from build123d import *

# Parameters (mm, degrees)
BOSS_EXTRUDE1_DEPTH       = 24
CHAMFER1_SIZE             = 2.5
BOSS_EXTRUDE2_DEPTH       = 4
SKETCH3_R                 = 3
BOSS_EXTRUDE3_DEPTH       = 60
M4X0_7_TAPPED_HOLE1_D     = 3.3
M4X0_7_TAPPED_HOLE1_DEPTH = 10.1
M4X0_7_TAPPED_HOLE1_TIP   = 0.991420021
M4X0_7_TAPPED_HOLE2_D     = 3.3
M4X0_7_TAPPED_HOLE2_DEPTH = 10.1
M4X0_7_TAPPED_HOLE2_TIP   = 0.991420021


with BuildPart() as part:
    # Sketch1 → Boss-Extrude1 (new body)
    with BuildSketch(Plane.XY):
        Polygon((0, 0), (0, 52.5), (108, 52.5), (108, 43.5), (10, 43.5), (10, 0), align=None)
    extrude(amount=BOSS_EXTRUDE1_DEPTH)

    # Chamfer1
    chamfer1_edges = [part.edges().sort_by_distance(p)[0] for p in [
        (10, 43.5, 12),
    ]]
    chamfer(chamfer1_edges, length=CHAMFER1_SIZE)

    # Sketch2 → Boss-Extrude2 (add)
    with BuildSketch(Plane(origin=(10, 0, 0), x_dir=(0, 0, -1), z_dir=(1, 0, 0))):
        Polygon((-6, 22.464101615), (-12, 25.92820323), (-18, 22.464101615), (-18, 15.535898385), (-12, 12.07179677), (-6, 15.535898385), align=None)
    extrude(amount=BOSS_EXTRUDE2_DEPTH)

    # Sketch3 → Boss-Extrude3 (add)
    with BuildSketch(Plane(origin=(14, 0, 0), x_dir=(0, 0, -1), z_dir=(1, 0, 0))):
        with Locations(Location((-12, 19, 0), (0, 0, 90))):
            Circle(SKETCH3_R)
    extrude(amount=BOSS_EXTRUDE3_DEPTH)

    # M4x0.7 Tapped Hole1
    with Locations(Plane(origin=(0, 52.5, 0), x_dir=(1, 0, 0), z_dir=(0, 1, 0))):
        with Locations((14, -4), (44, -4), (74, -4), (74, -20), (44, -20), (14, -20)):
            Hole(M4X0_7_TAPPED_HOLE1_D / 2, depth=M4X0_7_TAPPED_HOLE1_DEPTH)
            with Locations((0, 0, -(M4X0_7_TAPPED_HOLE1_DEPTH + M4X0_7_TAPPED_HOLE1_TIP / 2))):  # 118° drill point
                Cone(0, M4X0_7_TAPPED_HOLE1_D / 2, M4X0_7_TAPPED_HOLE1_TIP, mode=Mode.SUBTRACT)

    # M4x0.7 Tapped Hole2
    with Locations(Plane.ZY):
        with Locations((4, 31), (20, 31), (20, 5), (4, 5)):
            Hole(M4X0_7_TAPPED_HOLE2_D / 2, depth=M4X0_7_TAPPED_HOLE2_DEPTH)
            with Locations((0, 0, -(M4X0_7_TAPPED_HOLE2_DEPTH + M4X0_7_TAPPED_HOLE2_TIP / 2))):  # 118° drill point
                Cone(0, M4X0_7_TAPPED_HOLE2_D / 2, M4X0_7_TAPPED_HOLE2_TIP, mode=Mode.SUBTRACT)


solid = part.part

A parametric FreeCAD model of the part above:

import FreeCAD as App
import Part
import Sketcher
from FreeCAD import Vector
Q = App.Units.Quantity


def edges_at(feature, points):
    """Names of the edges that pass closest to the given points."""
    edges = feature.Shape.Edges
    near = lambda p: min(range(len(edges)), key=lambda i: edges[i].distToShape(Part.Vertex(*p))[0])
    return sorted({f"Edge{near(p) + 1}" for p in points})


def add_polygon(sketch, points):
    """Adds a closed chain of lines whose ends are joined by coincident constraints."""
    first, n = sketch.GeometryCount, len(points)
    for a, b in zip(points, points[1:] + points[:1]):
        sketch.addGeometry(Part.LineSegment(App.Vector(*a, 0), App.Vector(*b, 0)), False)
    for i in range(n):
        sketch.addConstraint(Sketcher.Constraint("Coincident", first + i, 2, first + (i + 1) % n, 1))

doc = App.newDocument("Part")
params = doc.addObject("Spreadsheet::Sheet", "Params")
for row, (alias, value) in enumerate([
    ("sketch1_width", "10 mm"),
    ("sketch1_width2", "98 mm"),
    ("sketch1_height", "9 mm"),
    ("sketch1_height2", "52.5 mm"),
    ("pad1_length", "24 mm"),
    ("chamfer_size", "2.5 mm"),
    ("pad2_length", "4 mm"),
    ("sketch3_diameter", "6 mm"),
    ("pad3_length", "60 mm"),
    ("sketch4_diameter", "3.3 mm"),
    ("hole_diameter", "3.3 mm"),
    ("hole_depth", "10.1 mm"),
    ("sketch5_diameter", "3.3 mm"),
    ("hole2_diameter", "3.3 mm"),
    ("hole2_depth", "10.1 mm"),
], start=1):
    params.set(f"A{row}", alias)
    params.set(f"B{row}", "=" + value)
    params.setAlias(f"B{row}", alias)

body = doc.addObject("PartDesign::Body", "Body")

# Sketch on XY plane
sketch1 = body.newObject("Sketcher::SketchObject", "Sketch")
sketch1.AttachmentSupport = (doc.getObject("XY_Plane"), [""])
sketch1.MapMode = "FlatFace"
add_polygon(sketch1, [(0, 52), (0, 0), (10, 0), (10, 44), (108, 44), (108, 52)])  # lines 0-5
sketch1.addConstraint(Sketcher.Constraint("Vertical", 0))
sketch1.addConstraint(Sketcher.Constraint("Horizontal", 1))
sketch1.addConstraint(Sketcher.Constraint("Vertical", 2))
sketch1.addConstraint(Sketcher.Constraint("Horizontal", 3))
sketch1.addConstraint(Sketcher.Constraint("Vertical", 4))
sketch1.addConstraint(Sketcher.Constraint("Horizontal", 5))
sketch1.addConstraint(Sketcher.Constraint("Coincident", 0, 2, -1, 1))
sketch1.addConstraint(Sketcher.Constraint("DistanceX", 1, 1, 1, 2, Q("10 mm")))
sketch1.addConstraint(Sketcher.Constraint("DistanceX", 3, 1, 3, 2, Q("98 mm")))
sketch1.addConstraint(Sketcher.Constraint("DistanceY", 4, 1, 4, 2, Q("9 mm")))
sketch1.addConstraint(Sketcher.Constraint("DistanceY", 0, 2, 0, 1, Q("52.5 mm")))
sketch1.setExpression("Constraints[13]", "Params.sketch1_width")
sketch1.setExpression("Constraints[14]", "Params.sketch1_width2")
sketch1.setExpression("Constraints[15]", "Params.sketch1_height")
sketch1.setExpression("Constraints[16]", "Params.sketch1_height2")
pad1 = body.newObject("PartDesign::Pad", "Pad")
pad1.Profile = sketch1
pad1.setExpression("Length", "Params.pad1_length")
doc.recompute()

chamfer = body.newObject("PartDesign::Chamfer", "Chamfer")
chamfer.Base = (pad1, edges_at(pad1, [(10, 43.5, 12)]))
chamfer.setExpression("Size", "Params.chamfer_size")

# Sketch on YZ plane
sketch2 = body.newObject("Sketcher::SketchObject", "Sketch001")
sketch2.AttachmentSupport = (doc.getObject("YZ_Plane"), [""])
sketch2.MapMode = "FlatFace"
sketch2.AttachmentOffset = App.Placement(Vector(0, 0, 10), App.Rotation())
add_polygon(sketch2, [(22, 6), (26, 12), (22, 18), (16, 18), (12, 12), (16, 6)])  # lines 0-5
sketch2.addConstraint(Sketcher.Constraint("Horizontal", 2))
sketch2.addConstraint(Sketcher.Constraint("Horizontal", 5))
sketch2.addConstraint(Sketcher.Constraint("Parallel", 0, 3))
sketch2.addConstraint(Sketcher.Constraint("Parallel", 1, 4))
sketch2.addConstraint(Sketcher.Constraint("Horizontal", 0, 2, 3, 2))
sketch2.addConstraint(Sketcher.Constraint("Vertical", 2, 2, 4, 2))
sketch2.addConstraint(Sketcher.Constraint("Vertical", 1, 2, 5, 2))
sketch2.addConstraint(Sketcher.Constraint("Angle", 0, Q("60 deg")))
sketch2.addConstraint(Sketcher.Constraint("DistanceY", -1, 1, 0, 2, Q("12 mm")))
sketch2.addConstraint(Sketcher.Constraint("DistanceY", -1, 1, 1, 2, Q("18 mm")))
sketch2.addConstraint(Sketcher.Constraint("DistanceX", -1, 1, 1, 2, Q("22.464102 mm")))
sketch2.addConstraint(Sketcher.Constraint("DistanceX", -1, 1, 2, 2, Q("15.535898 mm")))
pad2 = body.newObject("PartDesign::Pad", "Pad001")
pad2.Profile = sketch2
pad2.setExpression("Length", "Params.pad2_length")

# Sketch on YZ plane
sketch3 = body.newObject("Sketcher::SketchObject", "Sketch002")
sketch3.AttachmentSupport = (doc.getObject("YZ_Plane"), [""])
sketch3.MapMode = "FlatFace"
sketch3.AttachmentOffset = App.Placement(Vector(0, 0, 14), App.Rotation())
sketch3.addGeometry(Part.Circle(Vector(19, 12, 0), Vector(0, 0, 1), 3), False)
sketch3.addConstraint(Sketcher.Constraint("Diameter", 0, Q("6 mm")))
sketch3.addConstraint(Sketcher.Constraint("DistanceX", -1, 1, 0, 3, Q("19 mm")))
sketch3.addConstraint(Sketcher.Constraint("DistanceY", -1, 1, 0, 3, Q("12 mm")))
sketch3.setExpression("Constraints[0]", "Params.sketch3_diameter")
pad3 = body.newObject("PartDesign::Pad", "Pad002")
pad3.Profile = sketch3
pad3.setExpression("Length", "Params.pad3_length")

# Sketch on XZ plane
sketch4 = body.newObject("Sketcher::SketchObject", "Sketch003")
sketch4.AttachmentSupport = (doc.getObject("XZ_Plane"), [""])
sketch4.MapMode = "FlatFace"
sketch4.AttachmentOffset = App.Placement(Vector(0, 0, -52.5), App.Rotation())
sketch4.addGeometry(Part.Circle(Vector(14, 4, 0), Vector(0, 0, 1), 1.6), False)
sketch4.addGeometry(Part.Circle(Vector(44, 4, 0), Vector(0, 0, 1), 1.6), False)
sketch4.addGeometry(Part.Circle(Vector(74, 4, 0), Vector(0, 0, 1), 1.6), False)
sketch4.addGeometry(Part.Circle(Vector(74, 20, 0), Vector(0, 0, 1), 1.6), False)
sketch4.addGeometry(Part.Circle(Vector(44, 20, 0), Vector(0, 0, 1), 1.6), False)
sketch4.addGeometry(Part.Circle(Vector(14, 20, 0), Vector(0, 0, 1), 1.6), False)
sketch4.addConstraint(Sketcher.Constraint("Equal", 0, 1))
sketch4.addConstraint(Sketcher.Constraint("Equal", 1, 2))
sketch4.addConstraint(Sketcher.Constraint("Equal", 2, 3))
sketch4.addConstraint(Sketcher.Constraint("Equal", 3, 4))
sketch4.addConstraint(Sketcher.Constraint("Equal", 4, 5))
sketch4.addConstraint(Sketcher.Constraint("Horizontal", 0, 3, 1, 3))
sketch4.addConstraint(Sketcher.Constraint("Horizontal", 1, 3, 2, 3))
sketch4.addConstraint(Sketcher.Constraint("Horizontal", 3, 3, 4, 3))
sketch4.addConstraint(Sketcher.Constraint("Horizontal", 4, 3, 5, 3))
sketch4.addConstraint(Sketcher.Constraint("Vertical", 2, 3, 3, 3))
sketch4.addConstraint(Sketcher.Constraint("Vertical", 1, 3, 4, 3))
sketch4.addConstraint(Sketcher.Constraint("Vertical", 0, 3, 5, 3))
sketch4.addConstraint(Sketcher.Constraint("Diameter", 0, Q("3.3 mm")))
sketch4.addConstraint(Sketcher.Constraint("DistanceX", -1, 1, 0, 3, Q("14 mm")))
sketch4.addConstraint(Sketcher.Constraint("DistanceY", -1, 1, 0, 3, Q("4 mm")))
sketch4.addConstraint(Sketcher.Constraint("DistanceX", -1, 1, 1, 3, Q("44 mm")))
sketch4.addConstraint(Sketcher.Constraint("DistanceX", -1, 1, 2, 3, Q("74 mm")))
sketch4.addConstraint(Sketcher.Constraint("DistanceY", -1, 1, 3, 3, Q("20 mm")))
sketch4.setExpression("Constraints[12]", "Params.sketch4_diameter")
doc.recompute()
hole = body.newObject("PartDesign::Hole", "Hole")
hole.Profile = sketch4
hole.ThreadType = "None"
hole.setExpression("Diameter", "Params.hole_diameter")
hole.DepthType = "Dimension"
hole.setExpression("Depth", "Params.hole_depth")
hole.DrillPoint = "Angled"
hole.DrillPointAngle = 118
hole.Reversed = True

# Sketch on YZ plane
sketch5 = body.newObject("Sketcher::SketchObject", "Sketch004")
sketch5.AttachmentSupport = (doc.getObject("YZ_Plane"), [""])
sketch5.MapMode = "FlatFace"
sketch5.addGeometry(Part.Circle(Vector(31, 4, 0), Vector(0, 0, 1), 1.6), False)
sketch5.addGeometry(Part.Circle(Vector(31, 20, 0), Vector(0, 0, 1), 1.6), False)
sketch5.addGeometry(Part.Circle(Vector(5, 20, 0), Vector(0, 0, 1), 1.6), False)
sketch5.addGeometry(Part.Circle(Vector(5, 4, 0), Vector(0, 0, 1), 1.6), False)
sketch5.addConstraint(Sketcher.Constraint("Equal", 0, 1))
sketch5.addConstraint(Sketcher.Constraint("Equal", 1, 2))
sketch5.addConstraint(Sketcher.Constraint("Equal", 2, 3))
sketch5.addConstraint(Sketcher.Constraint("Horizontal", 1, 3, 2, 3))
sketch5.addConstraint(Sketcher.Constraint("Horizontal", 0, 3, 3, 3))
sketch5.addConstraint(Sketcher.Constraint("Vertical", 0, 3, 1, 3))
sketch5.addConstraint(Sketcher.Constraint("Vertical", 2, 3, 3, 3))
sketch5.addConstraint(Sketcher.Constraint("Diameter", 0, Q("3.3 mm")))
sketch5.addConstraint(Sketcher.Constraint("DistanceX", -1, 1, 0, 3, Q("31 mm")))
sketch5.addConstraint(Sketcher.Constraint("DistanceY", -1, 1, 0, 3, Q("4 mm")))
sketch5.addConstraint(Sketcher.Constraint("DistanceY", -1, 1, 1, 3, Q("20 mm")))
sketch5.addConstraint(Sketcher.Constraint("DistanceX", -1, 1, 2, 3, Q("5 mm")))
sketch5.setExpression("Constraints[7]", "Params.sketch5_diameter")
doc.recompute()
hole2 = body.newObject("PartDesign::Hole", "Hole001")
hole2.Profile = sketch5
hole2.ThreadType = "None"
hole2.setExpression("Diameter", "Params.hole2_diameter")
hole2.DepthType = "Dimension"
hole2.setExpression("Depth", "Params.hole2_depth")
hole2.DrillPoint = "Angled"
hole2.DrillPointAngle = 118
hole2.Reversed = True

doc.recompute()
